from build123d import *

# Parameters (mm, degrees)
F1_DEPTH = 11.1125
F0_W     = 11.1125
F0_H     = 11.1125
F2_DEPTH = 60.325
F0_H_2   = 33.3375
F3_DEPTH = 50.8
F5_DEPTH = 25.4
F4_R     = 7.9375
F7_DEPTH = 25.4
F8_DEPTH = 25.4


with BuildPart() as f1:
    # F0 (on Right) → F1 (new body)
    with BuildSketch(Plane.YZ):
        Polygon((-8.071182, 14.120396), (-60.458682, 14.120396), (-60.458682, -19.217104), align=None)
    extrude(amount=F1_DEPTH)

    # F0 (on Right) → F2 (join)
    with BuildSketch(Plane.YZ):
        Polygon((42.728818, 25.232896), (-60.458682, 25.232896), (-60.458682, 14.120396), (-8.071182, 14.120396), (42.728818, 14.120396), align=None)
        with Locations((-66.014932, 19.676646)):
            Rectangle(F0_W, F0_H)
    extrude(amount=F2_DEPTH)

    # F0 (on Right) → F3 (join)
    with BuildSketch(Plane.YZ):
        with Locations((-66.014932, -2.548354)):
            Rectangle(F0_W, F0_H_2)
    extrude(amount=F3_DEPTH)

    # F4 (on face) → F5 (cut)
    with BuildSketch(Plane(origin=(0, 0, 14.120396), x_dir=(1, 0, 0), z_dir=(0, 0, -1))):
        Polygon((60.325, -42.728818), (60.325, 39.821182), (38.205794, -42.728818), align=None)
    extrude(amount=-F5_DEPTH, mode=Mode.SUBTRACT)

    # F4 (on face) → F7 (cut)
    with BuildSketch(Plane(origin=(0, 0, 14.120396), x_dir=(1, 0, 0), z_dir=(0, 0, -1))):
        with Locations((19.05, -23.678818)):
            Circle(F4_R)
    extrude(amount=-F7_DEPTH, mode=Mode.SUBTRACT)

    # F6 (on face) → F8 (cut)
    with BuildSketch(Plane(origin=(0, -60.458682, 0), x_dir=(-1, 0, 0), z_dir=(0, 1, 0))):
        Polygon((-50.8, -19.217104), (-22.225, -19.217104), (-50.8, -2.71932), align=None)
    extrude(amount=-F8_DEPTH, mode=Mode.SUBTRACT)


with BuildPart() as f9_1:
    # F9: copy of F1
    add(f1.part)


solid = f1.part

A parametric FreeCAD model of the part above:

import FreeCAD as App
import Part
import Sketcher

V = App.Vector
Q = App.Units.Quantity


def add_polygon(sketch, points):
    """Adds a closed chain of lines whose ends are joined by coincident constraints."""
    first, n = sketch.GeometryCount, len(points)
    for a, b in zip(points, points[1:] + points[:1]):
        sketch.addGeometry(Part.LineSegment(App.Vector(*a, 0), App.Vector(*b, 0)), False)
    for i in range(n):
        sketch.addConstraint(Sketcher.Constraint("Coincident", first + i, 2, first + (i + 1) % n, 1))

doc = App.newDocument("Part")
body = doc.addObject("PartDesign::Body", "Body")

# Sketch on YZ plane
sketch1 = doc.addObject("Sketcher::SketchObject", "Sketch")
body.addObject(sketch1)
sketch1.AttachmentSupport = (doc.YZ_Plane, [""])
sketch1.MapMode = "FlatFace"
add_polygon(sketch1, [(-8, 14), (-60, 14), (-60, -19)])  # lines 0-2
sketch1.addConstraint([
    Sketcher.Constraint("Horizontal", 0),
    Sketcher.Constraint("Vertical", 1),
    Sketcher.Constraint("DistanceX", 0, 2, 0, 1, Q("2.0625 in")),
    Sketcher.Constraint("DistanceY", 1, 2, 1, 1, Q("1.3125 in")),
    Sketcher.Constraint("DistanceX", 0, 2, -1, 1, Q("60.458682 mm")),
    Sketcher.Constraint("DistanceY", -1, 1, 0, 2, Q("14.120396 mm")),
])
pad1 = doc.addObject("PartDesign::Pad", "Pad")
body.addObject(pad1)
pad1.Profile = sketch1
pad1.Length = Q("0.4375 in")

# Sketch on YZ plane
sketch2 = doc.addObject("Sketcher::SketchObject", "Sketch001")
body.addObject(sketch2)
sketch2.AttachmentSupport = (doc.YZ_Plane, [""])
sketch2.MapMode = "FlatFace"
add_polygon(sketch2, [(43, 25), (-72, 25), (-72, 14), (43, 14)])  # lines 0-3
sketch2.addConstraint([
    Sketcher.Constraint("Horizontal", 0),
    Sketcher.Constraint("Vertical", 1),
    Sketcher.Constraint("Horizontal", 2),
    Sketcher.Constraint("Vertical", 3),
    Sketcher.Constraint("DistanceX", 0, 2, 0, 1, Q("4.5 in")),
    Sketcher.Constraint("DistanceY", 1, 2, 1, 1, Q("0.4375 in")),
    Sketcher.Constraint("DistanceX", 0, 2, -1, 1, Q("71.571182 mm")),
    Sketcher.Constraint("DistanceY", -1, 1, 0, 2, Q("25.232896 mm")),
])
pad2 = doc.addObject("PartDesign::Pad", "Pad001")
body.addObject(pad2)
pad2.Profile = sketch2
pad2.Length = Q("2.375 in")

# Sketch on YZ plane
sketch3 = doc.addObject("Sketcher::SketchObject", "Sketch002")
body.addObject(sketch3)
sketch3.AttachmentSupport = (doc.YZ_Plane, [""])
sketch3.MapMode = "FlatFace"
add_polygon(sketch3, [(-72, 14), (-72, -19), (-60, -19), (-60, 14)])  # lines 0-3
sketch3.addConstraint([
    Sketcher.Constraint("Vertical", 0),
    Sketcher.Constraint("Horizontal", 1),
    Sketcher.Constraint("Vertical", 2),
    Sketcher.Constraint("Horizontal", 3),
    Sketcher.Constraint("DistanceX", 1, 1, 1, 2, Q("0.4375 in")),
    Sketcher.Constraint("DistanceY", 0, 2, 0, 1, Q("1.3125 in")),
    Sketcher.Constraint("DistanceX", 0, 2, -1, 1, Q("71.571182 mm")),
    Sketcher.Constraint("DistanceY", 0, 2, -1, 1, Q("19.217104 mm")),
])
pad3 = doc.addObject("PartDesign::Pad", "Pad002")
body.addObject(pad3)
pad3.Profile = sketch3
pad3.Length = Q("2 in")

# Sketch on XY plane
sketch4 = doc.addObject("Sketcher::SketchObject", "Sketch003")
body.addObject(sketch4)
sketch4.AttachmentSupport = (doc.XY_Plane, [""])
sketch4.MapMode = "FlatFace"
sketch4.AttachmentOffset = App.Placement(V(0, 0, 14.120396), App.Rotation())
add_polygon(sketch4, [(60, 43), (60, -40), (38, 43)])  # lines 0-2
sketch4.addConstraint([
    Sketcher.Constraint("Vertical", 0),
    Sketcher.Constraint("Horizontal", 2),
    Sketcher.Constraint("Angle", 1, Q("105 deg")),
    Sketcher.Constraint("DistanceY", 0, 2, 0, 1, Q("3.25 in")),
    Sketcher.Constraint("DistanceX", -1, 1, 0, 2, Q("2.375 in")),
    Sketcher.Constraint("DistanceY", 0, 2, -1, 1, Q("39.821182 mm")),
])
pocket1 = doc.addObject("PartDesign::Pocket", "Pocket")
body.addObject(pocket1)
pocket1.Profile = sketch4
pocket1.Length = Q("1 in")
pocket1.Reversed = True

# Sketch on XY plane
sketch5 = doc.addObject("Sketcher::SketchObject", "Sketch004")
body.addObject(sketch5)
sketch5.AttachmentSupport = (doc.XY_Plane, [""])
sketch5.MapMode = "FlatFace"
sketch5.AttachmentOffset = App.Placement(V(0, 0, 14.120396), App.Rotation())
sketch5.addGeometry(Part.Circle(V(19, 24, 0), V(0, 0, 1), 8), False)
sketch5.addConstraint([
    Sketcher.Constraint("Diameter", 0, Q("0.625 in")),
    Sketcher.Constraint("DistanceX", -1, 1, 0, 3, Q("0.75 in")),
    Sketcher.Constraint("DistanceY", -1, 1, 0, 3, Q("23.678818 mm")),
])
pocket2 = doc.addObject("PartDesign::Pocket", "Pocket001")
body.addObject(pocket2)
pocket2.Profile = sketch5
pocket2.Length = Q("1 in")
pocket2.Reversed = True

# Sketch on XZ plane
sketch6 = doc.addObject("Sketcher::SketchObject", "Sketch005")
body.addObject(sketch6)
sketch6.AttachmentSupport = (doc.XZ_Plane, [""])
sketch6.MapMode = "FlatFace"
sketch6.AttachmentOffset = App.Placement(V(0, 0, 60.458682), App.Rotation())
add_polygon(sketch6, [(51, -19), (22, -19), (51, -3)])  # lines 0-2
sketch6.addConstraint([
    Sketcher.Constraint("Horizontal", 0),
    Sketcher.Constraint("Vertical", 2),
    Sketcher.Constraint("DistanceX", -1, 1, 1, 2, Q("2 in")),
    Sketcher.Constraint("Angle", 1, Q("30 deg")),
    Sketcher.Constraint("DistanceX", 0, 2, 0, 1, Q("1.125 in")),
    Sketcher.Constraint("DistanceY", 1, 2, -1, 1, Q("2.71932 mm")),
])
pocket3 = doc.addObject("PartDesign::Pocket", "Pocket002")
body.addObject(pocket3)
pocket3.Profile = sketch6
pocket3.Length = Q("1 in")
pocket3.Reversed = True
body2 = doc.addObject("PartDesign::Body", "Body001")
doc.recompute()

body2.BaseFeature = body
doc.recompute()
body.Visibility = False

doc.recompute()
